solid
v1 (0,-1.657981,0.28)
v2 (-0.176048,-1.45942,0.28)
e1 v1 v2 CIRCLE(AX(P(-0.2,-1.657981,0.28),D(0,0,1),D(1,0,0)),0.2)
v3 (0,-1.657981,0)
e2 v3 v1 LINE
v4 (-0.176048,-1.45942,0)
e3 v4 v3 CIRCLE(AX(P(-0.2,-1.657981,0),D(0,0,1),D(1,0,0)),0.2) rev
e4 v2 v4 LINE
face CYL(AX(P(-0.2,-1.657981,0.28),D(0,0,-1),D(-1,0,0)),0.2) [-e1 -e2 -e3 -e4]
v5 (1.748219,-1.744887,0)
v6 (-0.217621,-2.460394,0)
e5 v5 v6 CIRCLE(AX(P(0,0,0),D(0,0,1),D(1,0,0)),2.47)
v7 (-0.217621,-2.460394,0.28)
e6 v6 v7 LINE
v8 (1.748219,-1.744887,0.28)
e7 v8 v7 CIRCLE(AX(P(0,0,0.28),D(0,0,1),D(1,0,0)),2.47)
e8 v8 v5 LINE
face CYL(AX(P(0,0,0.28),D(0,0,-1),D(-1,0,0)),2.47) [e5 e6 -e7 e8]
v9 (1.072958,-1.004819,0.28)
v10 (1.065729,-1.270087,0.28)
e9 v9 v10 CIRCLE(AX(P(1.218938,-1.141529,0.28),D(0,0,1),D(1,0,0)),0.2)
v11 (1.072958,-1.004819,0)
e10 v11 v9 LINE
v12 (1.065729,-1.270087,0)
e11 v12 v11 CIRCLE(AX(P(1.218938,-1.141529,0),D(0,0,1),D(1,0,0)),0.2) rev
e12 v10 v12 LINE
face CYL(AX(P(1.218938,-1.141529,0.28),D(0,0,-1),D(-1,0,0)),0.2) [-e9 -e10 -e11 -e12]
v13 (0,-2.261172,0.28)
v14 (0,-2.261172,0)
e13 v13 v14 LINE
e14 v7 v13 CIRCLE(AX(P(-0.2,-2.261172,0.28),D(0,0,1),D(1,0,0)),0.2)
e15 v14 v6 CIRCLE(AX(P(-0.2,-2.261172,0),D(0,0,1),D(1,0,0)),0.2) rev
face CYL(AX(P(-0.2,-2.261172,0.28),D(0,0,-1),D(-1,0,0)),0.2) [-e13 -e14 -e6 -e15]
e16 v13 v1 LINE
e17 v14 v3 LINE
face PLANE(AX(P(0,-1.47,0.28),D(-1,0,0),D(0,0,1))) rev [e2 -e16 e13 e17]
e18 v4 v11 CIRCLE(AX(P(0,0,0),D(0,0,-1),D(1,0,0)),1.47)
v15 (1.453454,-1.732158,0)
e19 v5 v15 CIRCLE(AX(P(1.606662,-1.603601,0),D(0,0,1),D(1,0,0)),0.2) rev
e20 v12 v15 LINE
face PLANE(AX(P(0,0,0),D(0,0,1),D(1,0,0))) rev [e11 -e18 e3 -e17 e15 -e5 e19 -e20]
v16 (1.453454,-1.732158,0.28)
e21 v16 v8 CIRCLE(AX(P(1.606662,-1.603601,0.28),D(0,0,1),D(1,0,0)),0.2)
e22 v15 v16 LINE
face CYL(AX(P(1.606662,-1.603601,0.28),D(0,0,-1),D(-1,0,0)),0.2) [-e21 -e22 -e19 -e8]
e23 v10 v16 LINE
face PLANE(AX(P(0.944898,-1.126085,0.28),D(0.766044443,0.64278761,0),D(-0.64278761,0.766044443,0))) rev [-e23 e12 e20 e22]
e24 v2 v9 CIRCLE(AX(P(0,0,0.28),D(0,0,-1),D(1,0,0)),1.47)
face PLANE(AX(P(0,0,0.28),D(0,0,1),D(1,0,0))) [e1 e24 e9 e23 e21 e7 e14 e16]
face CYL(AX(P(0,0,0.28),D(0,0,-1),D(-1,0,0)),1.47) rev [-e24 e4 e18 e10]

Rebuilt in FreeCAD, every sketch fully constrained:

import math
import FreeCAD as App
import Part
import Sketcher
from FreeCAD import Vector
Q = App.Units.Quantity


def edges_at(feature, points):
    """Names of the edges that pass closest to the given points."""
    edges = feature.Shape.Edges
    near = lambda p: min(range(len(edges)), key=lambda i: edges[i].distToShape(Part.Vertex(*p))[0])
    return sorted({f"Edge{near(p) + 1}" for p in points})

doc = App.newDocument("Part")
body = doc.addObject("PartDesign::Body", "Body")

sketch1 = body.newObject("Sketcher::SketchObject", "Sketch")
sketch1.AttachmentSupport = (doc.getObject("XY_Plane"), [""])
sketch1.MapMode = "FlatFace"
sketch1.addGeometry(Part.LineSegment(Vector(0, -2.5, 0), Vector(0, -1.5, 0)), False)
sketch1.addGeometry(Part.ArcOfCircle(Part.Circle(Vector(0, 0, 0), Vector(0, 0, 1), 1.5), math.radians(-50), math.radians(270)), False)
sketch1.addGeometry(Part.LineSegment(Vector(0.9, -1.1, 0), Vector(1.6, -1.9, 0)), False)
sketch1.addGeometry(Part.ArcOfCircle(Part.Circle(Vector(0, 0, 0), Vector(0, 0, 1), 2.5), math.radians(-50), math.radians(270)), False)
sketch1.addConstraint(Sketcher.Constraint("Coincident", 0, 2, 1, 2))
sketch1.addConstraint(Sketcher.Constraint("Coincident", 1, 1, 2, 1))
sketch1.addConstraint(Sketcher.Constraint("Coincident", 2, 2, 3, 1))
sketch1.addConstraint(Sketcher.Constraint("Coincident", 3, 2, 0, 1))
sketch1.addConstraint(Sketcher.Constraint("Vertical", 0))
sketch1.addConstraint(Sketcher.Constraint("Coincident", 1, 3, -1, 1))
sketch1.addConstraint(Sketcher.Constraint("Coincident", 3, 3, -1, 1))
sketch1.addConstraint(Sketcher.Constraint("PointOnObject", 0, 2, -2))
sketch1.addConstraint(Sketcher.Constraint("DistanceY", 0, 1, 0, 2, 1.0))
sketch1.addConstraint(Sketcher.Constraint("Angle", 2, Q("-50 deg")))
sketch1.addConstraint(Sketcher.Constraint("Radius", 1, 1.47))
sketch1.addConstraint(Sketcher.Constraint("DistanceY", 2, 2, -1, 1, 1.89213))
pad1 = body.newObject("PartDesign::Pad", "Pad")
pad1.Profile = sketch1
pad1.Length = 0.28
doc.recompute()

fillet = body.newObject("PartDesign::Fillet", "Fillet")
fillet.Base = (pad1, edges_at(pad1, [
    (0, -1.47, 0.14),
    (0, -2.47, 0.14),
    (1.588, -1.892, 0.14),
    (0.945, -1.126, 0.14),
]))
fillet.Radius = 0.2

doc.recompute()
